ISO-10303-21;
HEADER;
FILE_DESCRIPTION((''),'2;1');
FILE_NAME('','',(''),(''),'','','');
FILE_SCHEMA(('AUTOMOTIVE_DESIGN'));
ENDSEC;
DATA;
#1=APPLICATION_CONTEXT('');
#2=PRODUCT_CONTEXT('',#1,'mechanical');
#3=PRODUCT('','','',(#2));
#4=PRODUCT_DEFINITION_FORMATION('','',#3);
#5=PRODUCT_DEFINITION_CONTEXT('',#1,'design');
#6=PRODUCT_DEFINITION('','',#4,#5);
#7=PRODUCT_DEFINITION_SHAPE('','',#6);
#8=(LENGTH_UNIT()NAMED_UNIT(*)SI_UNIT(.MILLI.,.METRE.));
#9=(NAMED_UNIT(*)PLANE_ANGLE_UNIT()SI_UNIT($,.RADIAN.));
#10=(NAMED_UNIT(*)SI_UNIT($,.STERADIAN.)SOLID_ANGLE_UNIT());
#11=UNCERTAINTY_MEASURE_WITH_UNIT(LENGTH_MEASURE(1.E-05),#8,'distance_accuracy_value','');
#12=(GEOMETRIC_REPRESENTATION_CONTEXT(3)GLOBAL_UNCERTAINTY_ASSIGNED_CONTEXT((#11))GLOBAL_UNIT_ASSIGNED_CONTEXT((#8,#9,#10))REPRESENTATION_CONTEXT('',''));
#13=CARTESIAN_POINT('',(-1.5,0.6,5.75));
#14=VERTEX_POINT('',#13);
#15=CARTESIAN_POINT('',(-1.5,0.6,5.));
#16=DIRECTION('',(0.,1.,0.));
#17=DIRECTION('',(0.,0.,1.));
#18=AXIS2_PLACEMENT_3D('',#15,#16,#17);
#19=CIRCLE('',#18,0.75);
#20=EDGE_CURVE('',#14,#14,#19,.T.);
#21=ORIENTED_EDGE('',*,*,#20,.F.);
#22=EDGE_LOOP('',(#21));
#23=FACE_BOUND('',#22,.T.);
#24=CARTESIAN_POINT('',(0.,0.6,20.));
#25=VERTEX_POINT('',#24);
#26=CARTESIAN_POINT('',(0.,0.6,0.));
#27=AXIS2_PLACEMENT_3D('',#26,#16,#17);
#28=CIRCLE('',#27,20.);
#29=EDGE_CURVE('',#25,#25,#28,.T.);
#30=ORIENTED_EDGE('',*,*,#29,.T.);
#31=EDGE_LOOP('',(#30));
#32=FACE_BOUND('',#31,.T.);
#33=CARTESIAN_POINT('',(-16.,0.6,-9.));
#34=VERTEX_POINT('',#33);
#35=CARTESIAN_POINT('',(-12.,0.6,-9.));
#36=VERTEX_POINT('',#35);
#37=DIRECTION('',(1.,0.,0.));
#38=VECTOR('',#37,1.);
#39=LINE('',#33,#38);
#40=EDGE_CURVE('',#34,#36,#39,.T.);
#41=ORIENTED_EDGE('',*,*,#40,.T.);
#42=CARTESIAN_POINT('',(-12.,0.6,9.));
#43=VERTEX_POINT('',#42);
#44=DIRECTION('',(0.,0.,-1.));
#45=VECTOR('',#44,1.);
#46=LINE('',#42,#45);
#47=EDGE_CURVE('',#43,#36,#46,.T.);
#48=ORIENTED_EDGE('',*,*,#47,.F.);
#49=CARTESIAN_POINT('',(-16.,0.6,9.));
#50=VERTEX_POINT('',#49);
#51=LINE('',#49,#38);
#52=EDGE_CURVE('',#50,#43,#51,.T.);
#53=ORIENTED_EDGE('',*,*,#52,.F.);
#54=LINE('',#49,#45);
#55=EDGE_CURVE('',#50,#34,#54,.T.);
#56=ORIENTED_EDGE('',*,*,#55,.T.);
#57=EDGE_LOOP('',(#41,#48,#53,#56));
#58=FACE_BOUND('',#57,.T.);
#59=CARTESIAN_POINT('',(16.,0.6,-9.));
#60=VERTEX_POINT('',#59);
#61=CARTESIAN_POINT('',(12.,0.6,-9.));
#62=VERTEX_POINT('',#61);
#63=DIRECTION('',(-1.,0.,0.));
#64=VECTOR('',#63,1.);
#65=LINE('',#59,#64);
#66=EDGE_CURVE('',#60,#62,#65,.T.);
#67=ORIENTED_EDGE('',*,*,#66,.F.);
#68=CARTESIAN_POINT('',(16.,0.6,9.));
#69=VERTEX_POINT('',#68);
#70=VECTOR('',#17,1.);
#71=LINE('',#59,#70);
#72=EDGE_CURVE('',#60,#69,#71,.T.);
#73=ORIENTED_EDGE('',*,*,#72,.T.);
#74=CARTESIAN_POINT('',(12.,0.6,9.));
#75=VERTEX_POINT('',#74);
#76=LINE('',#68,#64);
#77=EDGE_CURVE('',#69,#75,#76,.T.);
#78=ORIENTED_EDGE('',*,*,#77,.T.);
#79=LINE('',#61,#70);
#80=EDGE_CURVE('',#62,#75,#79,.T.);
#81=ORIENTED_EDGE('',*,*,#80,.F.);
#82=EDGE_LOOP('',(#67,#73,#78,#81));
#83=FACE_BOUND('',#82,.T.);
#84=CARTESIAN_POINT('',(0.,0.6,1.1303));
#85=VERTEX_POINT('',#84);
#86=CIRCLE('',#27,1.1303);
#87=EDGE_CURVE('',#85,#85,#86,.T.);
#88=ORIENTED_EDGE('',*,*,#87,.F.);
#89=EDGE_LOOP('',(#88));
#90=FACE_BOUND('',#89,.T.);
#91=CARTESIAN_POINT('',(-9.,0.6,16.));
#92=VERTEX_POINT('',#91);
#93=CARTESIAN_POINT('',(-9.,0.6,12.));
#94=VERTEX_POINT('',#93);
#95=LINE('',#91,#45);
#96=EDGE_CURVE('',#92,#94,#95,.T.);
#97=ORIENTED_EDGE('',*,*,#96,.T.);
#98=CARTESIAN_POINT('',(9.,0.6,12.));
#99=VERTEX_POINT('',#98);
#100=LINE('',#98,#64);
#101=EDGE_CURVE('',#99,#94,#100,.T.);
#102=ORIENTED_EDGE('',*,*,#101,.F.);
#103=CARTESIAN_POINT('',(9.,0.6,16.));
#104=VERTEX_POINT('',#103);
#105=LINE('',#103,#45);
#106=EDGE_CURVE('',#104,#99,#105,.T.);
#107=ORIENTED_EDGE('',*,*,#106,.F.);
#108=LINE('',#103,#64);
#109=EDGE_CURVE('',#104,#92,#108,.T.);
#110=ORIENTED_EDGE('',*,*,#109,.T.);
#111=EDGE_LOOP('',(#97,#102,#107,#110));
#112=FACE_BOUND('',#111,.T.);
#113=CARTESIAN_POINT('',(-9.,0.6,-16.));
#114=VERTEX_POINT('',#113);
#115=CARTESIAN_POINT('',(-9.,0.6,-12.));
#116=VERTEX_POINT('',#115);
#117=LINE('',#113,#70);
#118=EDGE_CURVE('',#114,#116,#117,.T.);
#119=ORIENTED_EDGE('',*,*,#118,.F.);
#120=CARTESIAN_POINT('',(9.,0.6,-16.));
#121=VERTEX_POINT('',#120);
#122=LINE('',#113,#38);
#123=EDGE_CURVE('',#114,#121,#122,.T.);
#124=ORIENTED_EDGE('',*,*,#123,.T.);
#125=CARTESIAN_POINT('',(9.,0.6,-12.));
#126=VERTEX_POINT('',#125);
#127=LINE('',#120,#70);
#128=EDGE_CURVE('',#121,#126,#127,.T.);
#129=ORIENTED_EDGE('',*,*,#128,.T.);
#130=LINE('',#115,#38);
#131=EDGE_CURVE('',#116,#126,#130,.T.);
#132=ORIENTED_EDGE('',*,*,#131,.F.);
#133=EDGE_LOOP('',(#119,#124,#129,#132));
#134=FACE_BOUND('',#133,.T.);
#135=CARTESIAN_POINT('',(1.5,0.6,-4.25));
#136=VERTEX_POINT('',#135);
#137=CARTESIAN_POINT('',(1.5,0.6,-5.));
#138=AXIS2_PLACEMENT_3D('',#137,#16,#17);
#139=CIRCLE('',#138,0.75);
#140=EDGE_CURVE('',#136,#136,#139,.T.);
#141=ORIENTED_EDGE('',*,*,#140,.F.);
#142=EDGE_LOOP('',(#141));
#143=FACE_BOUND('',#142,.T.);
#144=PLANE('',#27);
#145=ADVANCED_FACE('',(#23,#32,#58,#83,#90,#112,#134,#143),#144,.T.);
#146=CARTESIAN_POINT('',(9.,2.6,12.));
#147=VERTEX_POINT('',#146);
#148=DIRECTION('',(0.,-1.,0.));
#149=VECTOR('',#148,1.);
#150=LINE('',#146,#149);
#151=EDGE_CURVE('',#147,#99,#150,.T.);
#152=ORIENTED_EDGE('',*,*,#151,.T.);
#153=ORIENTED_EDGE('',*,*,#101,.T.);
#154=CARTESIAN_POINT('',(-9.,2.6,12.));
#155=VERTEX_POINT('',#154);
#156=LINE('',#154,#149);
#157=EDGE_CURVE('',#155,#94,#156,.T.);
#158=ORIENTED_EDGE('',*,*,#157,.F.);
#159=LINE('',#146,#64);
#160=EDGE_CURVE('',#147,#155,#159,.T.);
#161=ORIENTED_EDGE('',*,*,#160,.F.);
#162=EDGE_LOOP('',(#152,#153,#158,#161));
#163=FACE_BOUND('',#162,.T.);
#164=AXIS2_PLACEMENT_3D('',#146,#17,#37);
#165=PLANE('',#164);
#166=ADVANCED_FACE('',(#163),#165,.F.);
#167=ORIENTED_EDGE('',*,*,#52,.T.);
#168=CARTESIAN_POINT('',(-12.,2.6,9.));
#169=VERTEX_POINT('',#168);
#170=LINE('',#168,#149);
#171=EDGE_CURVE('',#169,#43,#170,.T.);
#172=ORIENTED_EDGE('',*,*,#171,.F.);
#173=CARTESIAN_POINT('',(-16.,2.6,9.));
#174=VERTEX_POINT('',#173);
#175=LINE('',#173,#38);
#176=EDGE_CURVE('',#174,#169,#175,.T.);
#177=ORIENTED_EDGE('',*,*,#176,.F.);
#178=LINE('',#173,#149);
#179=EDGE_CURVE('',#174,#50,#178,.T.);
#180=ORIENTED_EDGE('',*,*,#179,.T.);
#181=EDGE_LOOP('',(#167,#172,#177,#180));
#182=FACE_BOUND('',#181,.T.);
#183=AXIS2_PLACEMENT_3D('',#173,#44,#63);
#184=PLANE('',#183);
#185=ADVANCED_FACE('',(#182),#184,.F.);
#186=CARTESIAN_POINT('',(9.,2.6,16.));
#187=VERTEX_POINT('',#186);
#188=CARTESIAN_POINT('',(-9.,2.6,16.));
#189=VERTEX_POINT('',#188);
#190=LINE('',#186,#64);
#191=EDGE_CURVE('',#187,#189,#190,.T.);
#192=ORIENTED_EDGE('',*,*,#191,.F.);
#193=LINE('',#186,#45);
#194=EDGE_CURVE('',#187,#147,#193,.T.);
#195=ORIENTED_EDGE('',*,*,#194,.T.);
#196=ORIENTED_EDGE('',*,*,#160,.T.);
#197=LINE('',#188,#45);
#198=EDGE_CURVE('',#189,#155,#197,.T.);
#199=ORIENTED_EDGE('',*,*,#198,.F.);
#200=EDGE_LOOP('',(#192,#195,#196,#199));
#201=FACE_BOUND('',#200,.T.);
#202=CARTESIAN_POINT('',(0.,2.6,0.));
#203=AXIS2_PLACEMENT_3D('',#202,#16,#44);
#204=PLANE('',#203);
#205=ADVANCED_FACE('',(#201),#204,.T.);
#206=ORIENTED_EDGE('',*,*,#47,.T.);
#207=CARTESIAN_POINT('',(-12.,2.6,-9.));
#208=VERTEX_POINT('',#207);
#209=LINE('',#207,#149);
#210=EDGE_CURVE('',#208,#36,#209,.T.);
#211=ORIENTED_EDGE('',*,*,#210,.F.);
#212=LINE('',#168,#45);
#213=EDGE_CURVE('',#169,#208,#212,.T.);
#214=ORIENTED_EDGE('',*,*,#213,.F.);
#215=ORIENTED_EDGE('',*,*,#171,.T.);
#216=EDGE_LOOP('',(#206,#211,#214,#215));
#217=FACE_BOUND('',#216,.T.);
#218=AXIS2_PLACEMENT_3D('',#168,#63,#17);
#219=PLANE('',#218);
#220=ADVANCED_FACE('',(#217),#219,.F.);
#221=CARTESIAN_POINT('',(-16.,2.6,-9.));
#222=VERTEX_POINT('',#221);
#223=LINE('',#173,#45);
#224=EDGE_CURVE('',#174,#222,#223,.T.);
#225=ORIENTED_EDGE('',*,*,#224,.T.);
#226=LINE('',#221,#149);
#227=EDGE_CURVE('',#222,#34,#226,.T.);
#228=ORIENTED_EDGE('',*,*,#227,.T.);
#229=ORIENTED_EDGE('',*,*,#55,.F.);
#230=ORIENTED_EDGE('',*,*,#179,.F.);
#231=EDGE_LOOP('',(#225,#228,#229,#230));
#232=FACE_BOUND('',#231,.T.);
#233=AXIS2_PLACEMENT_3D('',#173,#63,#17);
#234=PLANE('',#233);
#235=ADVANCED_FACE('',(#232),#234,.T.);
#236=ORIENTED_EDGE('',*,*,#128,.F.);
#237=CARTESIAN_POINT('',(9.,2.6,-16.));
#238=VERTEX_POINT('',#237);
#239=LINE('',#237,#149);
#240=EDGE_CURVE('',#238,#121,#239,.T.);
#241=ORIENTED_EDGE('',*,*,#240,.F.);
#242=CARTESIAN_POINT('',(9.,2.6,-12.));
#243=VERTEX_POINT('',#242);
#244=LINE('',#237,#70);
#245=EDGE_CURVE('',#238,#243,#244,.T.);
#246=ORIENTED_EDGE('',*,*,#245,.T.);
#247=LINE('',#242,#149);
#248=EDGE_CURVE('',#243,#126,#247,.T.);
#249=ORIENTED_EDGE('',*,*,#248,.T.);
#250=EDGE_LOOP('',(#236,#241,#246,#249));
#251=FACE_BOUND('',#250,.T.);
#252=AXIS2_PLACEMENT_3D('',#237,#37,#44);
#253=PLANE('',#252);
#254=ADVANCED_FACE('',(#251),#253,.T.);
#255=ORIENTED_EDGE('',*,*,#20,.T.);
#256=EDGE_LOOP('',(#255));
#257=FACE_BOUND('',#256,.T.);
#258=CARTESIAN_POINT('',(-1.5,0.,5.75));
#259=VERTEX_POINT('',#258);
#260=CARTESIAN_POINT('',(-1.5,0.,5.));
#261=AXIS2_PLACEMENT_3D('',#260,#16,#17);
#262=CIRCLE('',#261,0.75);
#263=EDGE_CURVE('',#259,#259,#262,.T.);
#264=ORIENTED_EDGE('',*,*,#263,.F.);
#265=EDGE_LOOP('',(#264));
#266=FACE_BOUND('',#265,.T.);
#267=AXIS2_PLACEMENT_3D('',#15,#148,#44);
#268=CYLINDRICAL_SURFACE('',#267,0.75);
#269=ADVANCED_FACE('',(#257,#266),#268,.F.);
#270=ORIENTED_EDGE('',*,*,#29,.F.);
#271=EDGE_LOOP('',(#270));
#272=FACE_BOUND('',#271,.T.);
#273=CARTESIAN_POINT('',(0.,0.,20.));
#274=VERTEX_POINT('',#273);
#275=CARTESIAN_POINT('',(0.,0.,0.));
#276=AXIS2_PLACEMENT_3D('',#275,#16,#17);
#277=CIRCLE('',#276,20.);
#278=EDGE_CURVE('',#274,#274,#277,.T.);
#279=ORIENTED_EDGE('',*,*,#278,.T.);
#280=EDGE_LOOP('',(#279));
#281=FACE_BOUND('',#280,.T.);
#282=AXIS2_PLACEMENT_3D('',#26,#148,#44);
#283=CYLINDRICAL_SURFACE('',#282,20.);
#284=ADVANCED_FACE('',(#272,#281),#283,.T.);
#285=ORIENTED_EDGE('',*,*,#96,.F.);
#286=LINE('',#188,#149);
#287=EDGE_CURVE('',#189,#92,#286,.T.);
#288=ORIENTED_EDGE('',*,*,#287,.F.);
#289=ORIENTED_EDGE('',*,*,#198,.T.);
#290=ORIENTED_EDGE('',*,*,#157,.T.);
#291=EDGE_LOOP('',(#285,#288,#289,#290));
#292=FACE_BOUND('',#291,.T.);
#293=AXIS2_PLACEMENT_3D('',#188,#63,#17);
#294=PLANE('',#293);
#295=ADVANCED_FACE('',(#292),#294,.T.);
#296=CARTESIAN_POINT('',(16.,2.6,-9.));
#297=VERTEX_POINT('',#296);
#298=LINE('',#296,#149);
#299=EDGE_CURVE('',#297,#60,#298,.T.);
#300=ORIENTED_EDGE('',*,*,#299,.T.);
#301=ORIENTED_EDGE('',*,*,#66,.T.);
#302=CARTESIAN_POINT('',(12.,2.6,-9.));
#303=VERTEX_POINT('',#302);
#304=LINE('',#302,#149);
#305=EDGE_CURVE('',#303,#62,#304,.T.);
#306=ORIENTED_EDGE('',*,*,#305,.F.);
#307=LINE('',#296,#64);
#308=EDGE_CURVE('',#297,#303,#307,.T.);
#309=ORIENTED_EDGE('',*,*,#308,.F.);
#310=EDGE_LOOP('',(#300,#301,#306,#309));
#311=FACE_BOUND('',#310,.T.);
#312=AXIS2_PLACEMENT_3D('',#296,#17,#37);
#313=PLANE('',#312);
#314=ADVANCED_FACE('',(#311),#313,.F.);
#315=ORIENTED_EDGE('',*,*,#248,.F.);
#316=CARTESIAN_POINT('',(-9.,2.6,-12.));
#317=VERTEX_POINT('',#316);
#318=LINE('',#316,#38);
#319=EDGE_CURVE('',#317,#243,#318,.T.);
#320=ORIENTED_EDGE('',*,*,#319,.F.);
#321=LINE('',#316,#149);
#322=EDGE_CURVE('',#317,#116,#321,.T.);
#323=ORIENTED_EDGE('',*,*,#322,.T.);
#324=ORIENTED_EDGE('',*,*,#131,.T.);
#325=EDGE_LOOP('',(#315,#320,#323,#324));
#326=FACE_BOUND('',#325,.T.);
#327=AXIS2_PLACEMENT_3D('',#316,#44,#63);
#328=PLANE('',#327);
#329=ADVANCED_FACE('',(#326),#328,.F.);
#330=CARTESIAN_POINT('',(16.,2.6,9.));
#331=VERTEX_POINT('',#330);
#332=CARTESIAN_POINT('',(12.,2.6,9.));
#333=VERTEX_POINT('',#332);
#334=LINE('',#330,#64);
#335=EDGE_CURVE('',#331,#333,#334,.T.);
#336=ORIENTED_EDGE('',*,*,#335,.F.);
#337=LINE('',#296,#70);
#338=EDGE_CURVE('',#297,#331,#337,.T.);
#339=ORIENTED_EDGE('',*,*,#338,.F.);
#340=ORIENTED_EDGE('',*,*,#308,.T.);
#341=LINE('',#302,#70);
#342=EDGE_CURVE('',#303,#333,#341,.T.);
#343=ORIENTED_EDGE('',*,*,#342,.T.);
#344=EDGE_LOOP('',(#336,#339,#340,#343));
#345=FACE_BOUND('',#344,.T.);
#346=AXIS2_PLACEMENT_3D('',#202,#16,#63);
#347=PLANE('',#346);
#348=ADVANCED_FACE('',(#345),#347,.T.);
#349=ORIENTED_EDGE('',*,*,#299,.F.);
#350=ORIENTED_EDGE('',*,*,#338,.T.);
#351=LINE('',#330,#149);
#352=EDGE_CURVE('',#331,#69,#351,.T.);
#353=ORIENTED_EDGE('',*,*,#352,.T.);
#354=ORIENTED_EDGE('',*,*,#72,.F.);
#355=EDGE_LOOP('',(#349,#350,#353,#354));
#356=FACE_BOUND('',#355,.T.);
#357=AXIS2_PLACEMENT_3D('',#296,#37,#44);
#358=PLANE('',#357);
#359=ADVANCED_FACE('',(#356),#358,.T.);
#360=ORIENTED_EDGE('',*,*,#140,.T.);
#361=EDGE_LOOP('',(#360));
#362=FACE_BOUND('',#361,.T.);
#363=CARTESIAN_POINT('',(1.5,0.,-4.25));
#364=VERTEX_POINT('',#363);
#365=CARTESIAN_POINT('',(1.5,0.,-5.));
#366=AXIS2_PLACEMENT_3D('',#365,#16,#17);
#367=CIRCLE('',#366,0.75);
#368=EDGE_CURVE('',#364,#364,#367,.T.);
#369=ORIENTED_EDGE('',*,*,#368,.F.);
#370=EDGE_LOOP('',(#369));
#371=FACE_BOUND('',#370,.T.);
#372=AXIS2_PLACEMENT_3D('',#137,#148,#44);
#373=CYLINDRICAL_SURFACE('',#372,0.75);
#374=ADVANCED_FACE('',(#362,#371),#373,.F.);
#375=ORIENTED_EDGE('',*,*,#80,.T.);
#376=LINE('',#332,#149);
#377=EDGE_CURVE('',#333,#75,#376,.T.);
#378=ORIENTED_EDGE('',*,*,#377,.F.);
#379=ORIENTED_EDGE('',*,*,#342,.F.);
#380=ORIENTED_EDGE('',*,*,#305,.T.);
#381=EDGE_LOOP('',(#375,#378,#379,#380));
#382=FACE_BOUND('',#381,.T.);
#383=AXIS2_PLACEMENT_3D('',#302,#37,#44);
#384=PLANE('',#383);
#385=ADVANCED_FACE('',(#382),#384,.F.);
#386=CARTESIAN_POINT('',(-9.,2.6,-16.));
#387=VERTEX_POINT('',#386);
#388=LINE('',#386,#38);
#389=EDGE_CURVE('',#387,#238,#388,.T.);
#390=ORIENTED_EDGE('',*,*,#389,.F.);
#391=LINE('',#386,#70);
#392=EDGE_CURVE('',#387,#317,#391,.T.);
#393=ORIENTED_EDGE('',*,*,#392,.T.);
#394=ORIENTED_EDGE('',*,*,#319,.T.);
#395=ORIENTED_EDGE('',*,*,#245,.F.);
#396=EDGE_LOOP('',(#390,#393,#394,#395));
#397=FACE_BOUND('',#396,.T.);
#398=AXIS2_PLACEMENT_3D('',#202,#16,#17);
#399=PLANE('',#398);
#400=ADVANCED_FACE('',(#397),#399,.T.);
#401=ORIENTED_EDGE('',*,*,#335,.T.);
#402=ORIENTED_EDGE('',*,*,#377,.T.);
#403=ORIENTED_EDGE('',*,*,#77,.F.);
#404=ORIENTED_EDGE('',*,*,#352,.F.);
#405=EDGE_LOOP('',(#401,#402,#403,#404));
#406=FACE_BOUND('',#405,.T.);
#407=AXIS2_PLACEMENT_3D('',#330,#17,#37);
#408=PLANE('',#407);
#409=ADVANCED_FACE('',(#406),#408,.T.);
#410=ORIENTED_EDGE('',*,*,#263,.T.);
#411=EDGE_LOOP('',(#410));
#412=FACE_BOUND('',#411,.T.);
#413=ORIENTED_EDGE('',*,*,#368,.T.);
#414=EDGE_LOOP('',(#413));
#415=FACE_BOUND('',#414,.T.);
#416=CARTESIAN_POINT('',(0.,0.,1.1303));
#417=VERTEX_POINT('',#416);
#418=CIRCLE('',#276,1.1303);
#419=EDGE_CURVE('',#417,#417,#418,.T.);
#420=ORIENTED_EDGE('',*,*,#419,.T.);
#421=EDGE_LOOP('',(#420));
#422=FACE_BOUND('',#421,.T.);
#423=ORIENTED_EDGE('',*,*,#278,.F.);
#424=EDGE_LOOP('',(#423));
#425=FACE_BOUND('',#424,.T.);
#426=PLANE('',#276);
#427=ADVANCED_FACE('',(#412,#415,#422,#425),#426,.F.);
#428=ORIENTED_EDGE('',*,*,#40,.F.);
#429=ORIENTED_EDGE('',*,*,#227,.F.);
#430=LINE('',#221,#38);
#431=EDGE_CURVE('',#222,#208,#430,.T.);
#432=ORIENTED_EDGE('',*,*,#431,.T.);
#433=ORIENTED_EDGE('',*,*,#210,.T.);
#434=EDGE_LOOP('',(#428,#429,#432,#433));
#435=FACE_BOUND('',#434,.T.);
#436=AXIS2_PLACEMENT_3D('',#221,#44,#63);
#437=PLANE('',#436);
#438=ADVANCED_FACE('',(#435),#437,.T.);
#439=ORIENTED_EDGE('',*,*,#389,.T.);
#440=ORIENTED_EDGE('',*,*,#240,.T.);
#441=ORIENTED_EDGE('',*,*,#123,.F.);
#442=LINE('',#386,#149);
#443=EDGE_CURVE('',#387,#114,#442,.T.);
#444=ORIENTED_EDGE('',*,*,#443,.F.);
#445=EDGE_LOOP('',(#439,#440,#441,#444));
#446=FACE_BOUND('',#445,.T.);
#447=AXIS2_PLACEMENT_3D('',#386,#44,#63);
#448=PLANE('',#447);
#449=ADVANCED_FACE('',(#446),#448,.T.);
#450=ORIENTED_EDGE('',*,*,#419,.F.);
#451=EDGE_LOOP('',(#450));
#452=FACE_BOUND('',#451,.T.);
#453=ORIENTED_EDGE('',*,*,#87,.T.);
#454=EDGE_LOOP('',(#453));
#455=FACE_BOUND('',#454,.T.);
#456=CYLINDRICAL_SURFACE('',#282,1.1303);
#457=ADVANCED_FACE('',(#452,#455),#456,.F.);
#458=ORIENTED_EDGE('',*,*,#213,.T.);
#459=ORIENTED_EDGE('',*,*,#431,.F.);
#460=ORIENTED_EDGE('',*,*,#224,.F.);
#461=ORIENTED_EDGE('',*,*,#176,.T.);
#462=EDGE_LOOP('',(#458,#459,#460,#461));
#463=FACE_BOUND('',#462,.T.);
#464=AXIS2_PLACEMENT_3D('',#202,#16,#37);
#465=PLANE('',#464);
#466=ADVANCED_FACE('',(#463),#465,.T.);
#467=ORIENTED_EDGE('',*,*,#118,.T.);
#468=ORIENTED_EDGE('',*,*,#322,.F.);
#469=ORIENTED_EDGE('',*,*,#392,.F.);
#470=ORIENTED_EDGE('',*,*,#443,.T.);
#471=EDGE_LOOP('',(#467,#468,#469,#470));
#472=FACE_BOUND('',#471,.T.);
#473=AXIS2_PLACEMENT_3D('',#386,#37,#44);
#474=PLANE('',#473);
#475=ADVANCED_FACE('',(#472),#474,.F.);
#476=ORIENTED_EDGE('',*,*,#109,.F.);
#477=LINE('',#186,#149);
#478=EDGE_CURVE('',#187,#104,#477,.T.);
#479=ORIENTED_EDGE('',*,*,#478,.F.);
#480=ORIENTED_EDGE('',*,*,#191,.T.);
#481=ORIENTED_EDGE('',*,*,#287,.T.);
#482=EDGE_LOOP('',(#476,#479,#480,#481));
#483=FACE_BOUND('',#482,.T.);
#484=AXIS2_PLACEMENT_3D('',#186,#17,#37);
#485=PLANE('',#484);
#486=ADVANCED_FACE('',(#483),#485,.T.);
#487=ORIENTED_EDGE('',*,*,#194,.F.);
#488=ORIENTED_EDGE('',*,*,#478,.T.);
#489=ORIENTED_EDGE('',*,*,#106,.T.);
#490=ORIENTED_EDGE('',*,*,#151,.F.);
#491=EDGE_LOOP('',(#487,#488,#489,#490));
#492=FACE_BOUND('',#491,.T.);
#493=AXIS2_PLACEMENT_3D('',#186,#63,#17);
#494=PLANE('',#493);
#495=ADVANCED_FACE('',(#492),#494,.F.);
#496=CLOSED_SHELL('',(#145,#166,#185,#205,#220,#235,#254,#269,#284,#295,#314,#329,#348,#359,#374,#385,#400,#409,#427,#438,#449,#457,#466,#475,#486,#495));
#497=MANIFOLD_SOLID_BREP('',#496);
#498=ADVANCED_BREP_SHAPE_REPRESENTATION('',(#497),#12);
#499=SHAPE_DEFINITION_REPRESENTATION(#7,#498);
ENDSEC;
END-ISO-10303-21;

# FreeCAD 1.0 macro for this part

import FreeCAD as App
import Part
import Sketcher

doc = App.newDocument("Part")
body = doc.addObject("PartDesign::Body", "Body")

# Sketch on XZ plane
sketch1 = doc.addObject("Sketcher::SketchObject", "Sketch")
body.addObject(sketch1)
sketch1.AttachmentSupport = (doc.XZ_Plane, [""])
sketch1.MapMode = "FlatFace"
sketch1.addGeometry([
    Part.Circle(App.Vector(0, 0, 0), App.Vector(0, 0, 1), 20),
    Part.Circle(App.Vector(-1.5, 5, 0), App.Vector(0, 0, 1), 0.8),
    Part.Circle(App.Vector(1.5, -5, 0), App.Vector(0, 0, 1), 0.8),
    Part.Circle(App.Vector(0, 0, 0), App.Vector(0, 0, 1), 1.1),
], False)
sketch1.addConstraint([
    Sketcher.Constraint("Coincident", 0, 3, -1, 1),
    Sketcher.Constraint("Coincident", 3, 3, -1, 1),
    Sketcher.Constraint("Equal", 1, 2),
    Sketcher.Constraint("Symmetric", 1, 3, 2, 3, -1, 1),
    Sketcher.Constraint("Diameter", 0, 40.0),
    Sketcher.Constraint("Diameter", 1, 1.5),
    Sketcher.Constraint("DistanceY", -1, 1, 1, 3, 5.0),
    Sketcher.Constraint("DistanceX", 1, 3, 2, 3, 3.0),
    Sketcher.Constraint("Diameter", 3, 2.2606),
])
pad1 = doc.addObject("PartDesign::Pad", "Pad")
body.addObject(pad1)
pad1.Profile = sketch1
pad1.Length = 0.6
pad1.Reversed = True

# Sketch on XZ plane
sketch2 = doc.addObject("Sketcher::SketchObject", "Sketch001")
body.addObject(sketch2)
sketch2.AttachmentSupport = (doc.XZ_Plane, [""])
sketch2.MapMode = "FlatFace"
sketch2.AttachmentOffset = App.Placement(App.Vector(0, 0, -0.6), App.Rotation())
sketch2.addGeometry([
    Part.LineSegment(App.Vector(-9, -16, 0), App.Vector(-9, -12, 0)),
    Part.LineSegment(App.Vector(-9, -12, 0), App.Vector(9, -12, 0)),
    Part.LineSegment(App.Vector(9, -12, 0), App.Vector(9, -16, 0)),
    Part.LineSegment(App.Vector(9, -16, 0), App.Vector(-9, -16, 0)),
], False)
sketch2.addConstraint([
    Sketcher.Constraint("Coincident", 0, 2, 1, 1),
    Sketcher.Constraint("Coincident", 1, 2, 2, 1),
    Sketcher.Constraint("Coincident", 2, 2, 3, 1),
    Sketcher.Constraint("Coincident", 3, 2, 0, 1),
    Sketcher.Constraint("Vertical", 0),
    Sketcher.Constraint("Horizontal", 1),
    Sketcher.Constraint("Vertical", 2),
    Sketcher.Constraint("Horizontal", 3),
    Sketcher.Constraint("DistanceX", 1, 1, 1, 2, 18.0),
    Sketcher.Constraint("DistanceY", 0, 1, 0, 2, 4.0),
    Sketcher.Constraint("DistanceX", 0, 2, -1, 1, 9.0),
    Sketcher.Constraint("DistanceY", 0, 2, -1, 1, 12.0),
])
pad2 = doc.addObject("PartDesign::Pad", "Pad001")
body.addObject(pad2)
pad2.Profile = sketch2
pad2.Length = 2
pad2.Reversed = True
doc.recompute()

polarpattern = doc.addObject("PartDesign::PolarPattern", "PolarPattern")
body.addObject(polarpattern)
polarpattern.Originals = [pad2]
polarpattern.Axis = (doc.Y_Axis, [""])
polarpattern.Angle = 360
polarpattern.Occurrences = 4
body.Tip = polarpattern

doc.recompute()
